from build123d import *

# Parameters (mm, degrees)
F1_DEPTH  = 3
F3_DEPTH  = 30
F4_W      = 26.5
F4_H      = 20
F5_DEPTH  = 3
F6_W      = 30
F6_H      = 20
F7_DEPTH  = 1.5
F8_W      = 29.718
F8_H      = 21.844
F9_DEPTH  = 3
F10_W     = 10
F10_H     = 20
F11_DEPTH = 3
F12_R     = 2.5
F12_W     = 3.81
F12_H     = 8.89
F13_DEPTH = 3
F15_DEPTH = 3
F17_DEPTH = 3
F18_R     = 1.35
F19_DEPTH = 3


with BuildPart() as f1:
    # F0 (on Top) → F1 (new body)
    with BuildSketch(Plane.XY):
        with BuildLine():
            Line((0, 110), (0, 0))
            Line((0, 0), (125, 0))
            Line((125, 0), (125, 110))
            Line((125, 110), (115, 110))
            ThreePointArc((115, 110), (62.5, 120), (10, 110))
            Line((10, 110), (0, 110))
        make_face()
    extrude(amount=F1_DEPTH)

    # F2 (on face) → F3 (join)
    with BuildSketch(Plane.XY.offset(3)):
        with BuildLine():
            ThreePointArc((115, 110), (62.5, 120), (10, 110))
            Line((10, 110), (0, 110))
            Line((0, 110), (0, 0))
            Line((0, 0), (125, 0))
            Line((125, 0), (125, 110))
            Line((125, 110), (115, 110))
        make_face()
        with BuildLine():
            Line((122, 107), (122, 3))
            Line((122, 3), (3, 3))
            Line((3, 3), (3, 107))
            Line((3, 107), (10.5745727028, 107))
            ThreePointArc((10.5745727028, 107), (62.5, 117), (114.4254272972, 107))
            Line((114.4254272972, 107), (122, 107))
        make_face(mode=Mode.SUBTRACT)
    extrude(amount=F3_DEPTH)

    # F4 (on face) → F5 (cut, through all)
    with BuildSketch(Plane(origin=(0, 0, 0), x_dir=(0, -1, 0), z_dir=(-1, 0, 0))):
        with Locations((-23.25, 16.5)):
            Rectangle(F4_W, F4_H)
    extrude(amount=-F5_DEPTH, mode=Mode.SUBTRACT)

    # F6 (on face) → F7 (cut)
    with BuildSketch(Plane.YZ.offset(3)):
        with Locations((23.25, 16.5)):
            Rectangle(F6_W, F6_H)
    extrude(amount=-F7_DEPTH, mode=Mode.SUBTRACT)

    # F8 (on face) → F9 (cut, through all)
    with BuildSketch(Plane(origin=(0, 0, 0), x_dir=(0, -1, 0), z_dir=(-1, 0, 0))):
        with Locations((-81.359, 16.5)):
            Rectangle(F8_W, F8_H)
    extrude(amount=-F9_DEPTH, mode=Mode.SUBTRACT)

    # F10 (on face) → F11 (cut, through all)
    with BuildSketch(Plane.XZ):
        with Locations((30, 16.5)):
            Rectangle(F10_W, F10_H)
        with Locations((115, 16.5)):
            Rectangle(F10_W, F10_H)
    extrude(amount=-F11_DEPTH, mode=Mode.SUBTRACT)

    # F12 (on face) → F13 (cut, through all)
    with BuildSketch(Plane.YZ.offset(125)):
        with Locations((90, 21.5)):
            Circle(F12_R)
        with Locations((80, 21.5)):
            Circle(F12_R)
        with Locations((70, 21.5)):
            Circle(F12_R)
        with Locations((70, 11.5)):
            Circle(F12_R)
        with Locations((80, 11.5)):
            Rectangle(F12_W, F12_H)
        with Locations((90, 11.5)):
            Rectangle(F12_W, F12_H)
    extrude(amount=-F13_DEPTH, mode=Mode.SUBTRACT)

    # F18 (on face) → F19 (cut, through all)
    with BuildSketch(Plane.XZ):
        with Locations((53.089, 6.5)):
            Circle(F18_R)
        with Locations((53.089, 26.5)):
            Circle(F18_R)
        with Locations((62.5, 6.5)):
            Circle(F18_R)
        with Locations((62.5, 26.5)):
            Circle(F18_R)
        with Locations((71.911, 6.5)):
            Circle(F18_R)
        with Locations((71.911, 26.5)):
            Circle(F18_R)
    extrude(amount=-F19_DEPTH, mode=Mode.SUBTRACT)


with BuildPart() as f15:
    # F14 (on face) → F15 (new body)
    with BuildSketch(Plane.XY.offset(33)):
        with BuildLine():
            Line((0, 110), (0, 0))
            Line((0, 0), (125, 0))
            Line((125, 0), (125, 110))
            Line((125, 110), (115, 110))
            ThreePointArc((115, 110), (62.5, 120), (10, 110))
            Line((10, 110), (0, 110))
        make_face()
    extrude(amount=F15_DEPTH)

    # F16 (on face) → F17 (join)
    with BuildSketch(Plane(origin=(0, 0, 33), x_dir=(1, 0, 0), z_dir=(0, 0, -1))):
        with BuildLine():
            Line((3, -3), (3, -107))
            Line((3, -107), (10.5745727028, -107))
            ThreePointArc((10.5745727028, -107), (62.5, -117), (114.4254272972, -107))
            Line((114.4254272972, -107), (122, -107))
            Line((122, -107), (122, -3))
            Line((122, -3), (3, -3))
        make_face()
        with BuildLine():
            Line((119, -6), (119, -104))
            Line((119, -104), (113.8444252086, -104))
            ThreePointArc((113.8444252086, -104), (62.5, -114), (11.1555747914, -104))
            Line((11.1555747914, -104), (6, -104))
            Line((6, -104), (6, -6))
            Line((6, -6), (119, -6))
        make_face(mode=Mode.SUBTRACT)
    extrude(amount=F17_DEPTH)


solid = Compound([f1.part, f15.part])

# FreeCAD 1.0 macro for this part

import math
import FreeCAD as App
import Part
import Sketcher
Q = App.Units.Quantity

doc = App.newDocument("Part")
body = doc.addObject("PartDesign::Body", "Body")

sketch1 = doc.addObject("Sketcher::SketchObject", "Sketch")
body.addObject(sketch1)
sketch1.AttachmentSupport = (doc.XY_Plane, [""])
sketch1.MapMode = "FlatFace"
sketch1.addGeometry([
    Part.LineSegment(App.Vector(0, 110, 0), App.Vector(0, 0, 0)),
    Part.LineSegment(App.Vector(0, 0, 0), App.Vector(125, 0, 0)),
    Part.LineSegment(App.Vector(125, 0, 0), App.Vector(125, 110, 0)),
    Part.LineSegment(App.Vector(125, 110, 0), App.Vector(115, 110, 0)),
    Part.ArcOfCircle(Part.Circle(App.Vector(62, -23, 0), App.Vector(0, 0, 1), 143), math.radians(68), math.radians(112)),
    Part.LineSegment(App.Vector(10, 110, 0), App.Vector(0, 110, 0)),
], False)
sketch1.addConstraint([
    Sketcher.Constraint("Coincident", 0, 2, 1, 1),
    Sketcher.Constraint("Coincident", 1, 2, 2, 1),
    Sketcher.Constraint("Coincident", 2, 2, 3, 1),
    Sketcher.Constraint("Coincident", 3, 2, 4, 1),
    Sketcher.Constraint("Coincident", 4, 2, 5, 1),
    Sketcher.Constraint("Coincident", 5, 2, 0, 1),
    Sketcher.Constraint("Vertical", 0),
    Sketcher.Constraint("Horizontal", 1),
    Sketcher.Constraint("Vertical", 2),
    Sketcher.Constraint("Horizontal", 3),
    Sketcher.Constraint("Horizontal", 5),
    Sketcher.Constraint("Coincident", 0, 2, -1, 1),
    Sketcher.Constraint("Horizontal", 3, 2, 4, 2),
    Sketcher.Constraint("Equal", 3, 5),
    Sketcher.Constraint("DistanceX", 1, 1, 1, 2, Q("125 mm")),
    Sketcher.Constraint("DistanceX", 3, 2, 3, 1, Q("10 mm")),
    Sketcher.Constraint("DistanceY", 0, 2, 0, 1, Q("110 mm")),
    Sketcher.Constraint("Radius", 4, Q("142.8125 mm")),
])
pad1 = doc.addObject("PartDesign::Pad", "Pad")
body.addObject(pad1)
pad1.Profile = sketch1
pad1.Length = 3

sketch2 = doc.addObject("Sketcher::SketchObject", "Sketch001")
body.addObject(sketch2)
sketch2.AttachmentSupport = (doc.XY_Plane, [""])
sketch2.MapMode = "FlatFace"
sketch2.AttachmentOffset = App.Placement(App.Vector(0, 0, 3), App.Rotation())
sketch2.addGeometry([
    Part.ArcOfCircle(Part.Circle(App.Vector(62, -23, 0), App.Vector(0, 0, 1), 143), math.radians(68), math.radians(112)),
    Part.LineSegment(App.Vector(10, 110, 0), App.Vector(0, 110, 0)),
    Part.LineSegment(App.Vector(0, 110, 0), App.Vector(0, 0, 0)),
    Part.LineSegment(App.Vector(0, 0, 0), App.Vector(125, 0, 0)),
    Part.LineSegment(App.Vector(125, 0, 0), App.Vector(125, 110, 0)),
    Part.LineSegment(App.Vector(125, 110, 0), App.Vector(115, 110, 0)),
    Part.LineSegment(App.Vector(114, 107, 0), App.Vector(122, 107, 0)),
    Part.LineSegment(App.Vector(122, 107, 0), App.Vector(122, 3, 0)),
    Part.LineSegment(App.Vector(122, 3, 0), App.Vector(3, 3, 0)),
    Part.LineSegment(App.Vector(3, 3, 0), App.Vector(3, 107, 0)),
    Part.LineSegment(App.Vector(3, 107, 0), App.Vector(11, 107, 0)),
    Part.ArcOfCircle(Part.Circle(App.Vector(62, -23, 0), App.Vector(0, 0, 1), 140), math.radians(68), math.radians(112)),
], False)
sketch2.addConstraint([
    Sketcher.Constraint("Coincident", 0, 2, 1, 1),
    Sketcher.Constraint("Coincident", 1, 2, 2, 1),
    Sketcher.Constraint("Coincident", 2, 2, 3, 1),
    Sketcher.Constraint("Coincident", 3, 2, 4, 1),
    Sketcher.Constraint("Coincident", 4, 2, 5, 1),
    Sketcher.Constraint("Coincident", 5, 2, 0, 1),
    Sketcher.Constraint("Coincident", 6, 2, 7, 1),
    Sketcher.Constraint("Coincident", 7, 2, 8, 1),
    Sketcher.Constraint("Coincident", 8, 2, 9, 1),
    Sketcher.Constraint("Coincident", 9, 2, 10, 1),
    Sketcher.Constraint("Coincident", 10, 2, 11, 2),
    Sketcher.Constraint("Coincident", 11, 1, 6, 1),
    Sketcher.Constraint("Horizontal", 1),
    Sketcher.Constraint("Vertical", 2),
    Sketcher.Constraint("Horizontal", 3),
    Sketcher.Constraint("Vertical", 4),
    Sketcher.Constraint("Horizontal", 5),
    Sketcher.Constraint("Horizontal", 6),
    Sketcher.Constraint("Vertical", 7),
    Sketcher.Constraint("Horizontal", 8),
    Sketcher.Constraint("Vertical", 9),
    Sketcher.Constraint("Horizontal", 10),
    Sketcher.Constraint("Coincident", 2, 2, -1, 1),
    Sketcher.Constraint("Coincident", 11, 3, 0, 3),
    Sketcher.Constraint("Horizontal", 1, 2, 4, 2),
    Sketcher.Constraint("Horizontal", 6, 2, 9, 2),
    Sketcher.Constraint("Equal", 1, 5),
    Sketcher.Constraint("Equal", 6, 10),
    Sketcher.Constraint("DistanceX", 1, 2, 1, 1, Q("10 mm")),
    Sketcher.Constraint("DistanceX", 3, 1, 3, 2, Q("125 mm")),
    Sketcher.Constraint("DistanceX", 8, 2, 8, 1, Q("119 mm")),
    Sketcher.Constraint("DistanceY", 2, 2, 2, 1, Q("110 mm")),
    Sketcher.Constraint("DistanceY", 7, 2, 7, 1, Q("104 mm")),
    Sketcher.Constraint("DistanceY", -1, 1, 6, 2, Q("107 mm")),
    Sketcher.Constraint("Radius", 0, Q("142.8125 mm")),
    Sketcher.Constraint("Radius", 11, Q("139.8125 mm")),
])
pad2 = doc.addObject("PartDesign::Pad", "Pad001")
body.addObject(pad2)
pad2.Profile = sketch2
pad2.Length = 30

sketch3 = doc.addObject("Sketcher::SketchObject", "Sketch002")
body.addObject(sketch3)
sketch3.AttachmentSupport = (doc.YZ_Plane, [""])
sketch3.MapMode = "FlatFace"
sketch3.addGeometry([
    Part.LineSegment(App.Vector(36, 26, 0), App.Vector(36, 6, 0)),
    Part.LineSegment(App.Vector(36, 6, 0), App.Vector(10, 6, 0)),
    Part.LineSegment(App.Vector(10, 6, 0), App.Vector(10, 26, 0)),
    Part.LineSegment(App.Vector(10, 26, 0), App.Vector(36, 26, 0)),
], False)
sketch3.addConstraint([
    Sketcher.Constraint("Coincident", 0, 2, 1, 1),
    Sketcher.Constraint("Coincident", 1, 2, 2, 1),
    Sketcher.Constraint("Coincident", 2, 2, 3, 1),
    Sketcher.Constraint("Coincident", 3, 2, 0, 1),
    Sketcher.Constraint("Vertical", 0),
    Sketcher.Constraint("Horizontal", 1),
    Sketcher.Constraint("Vertical", 2),
    Sketcher.Constraint("Horizontal", 3),
    Sketcher.Constraint("DistanceY", 0, 2, 0, 1, Q("20 mm")),
    Sketcher.Constraint("DistanceX", 1, 2, 1, 1, Q("26.5 mm")),
    Sketcher.Constraint("DistanceX", -1, 1, 1, 2, Q("10 mm")),
    Sketcher.Constraint("DistanceY", -1, 1, 0, 2, Q("6.5 mm")),
])
pocket1 = doc.addObject("PartDesign::Pocket", "Pocket")
body.addObject(pocket1)
pocket1.Profile = sketch3
pocket1.Length = 3
pocket1.Reversed = True

sketch4 = doc.addObject("Sketcher::SketchObject", "Sketch003")
body.addObject(sketch4)
sketch4.AttachmentSupport = (doc.YZ_Plane, [""])
sketch4.MapMode = "FlatFace"
sketch4.AttachmentOffset = App.Placement(App.Vector(0, 0, 3), App.Rotation())
sketch4.addGeometry([
    Part.LineSegment(App.Vector(8, 26, 0), App.Vector(8, 6, 0)),
    Part.LineSegment(App.Vector(8, 6, 0), App.Vector(38, 6, 0)),
    Part.LineSegment(App.Vector(38, 6, 0), App.Vector(38, 26, 0)),
    Part.LineSegment(App.Vector(38, 26, 0), App.Vector(8, 26, 0)),
], False)
sketch4.addConstraint([
    Sketcher.Constraint("Coincident", 0, 2, 1, 1),
    Sketcher.Constraint("Coincident", 1, 2, 2, 1),
    Sketcher.Constraint("Coincident", 2, 2, 3, 1),
    Sketcher.Constraint("Coincident", 3, 2, 0, 1),
    Sketcher.Constraint("Vertical", 0),
    Sketcher.Constraint("Horizontal", 1),
    Sketcher.Constraint("Vertical", 2),
    Sketcher.Constraint("Horizontal", 3),
    Sketcher.Constraint("DistanceX", 1, 1, 1, 2, Q("30 mm")),
    Sketcher.Constraint("DistanceY", 0, 2, 0, 1, Q("20 mm")),
    Sketcher.Constraint("DistanceY", -1, 1, 0, 2, Q("6.5 mm")),
    Sketcher.Constraint("DistanceX", -1, 1, 0, 2, Q("8.25 mm")),
])
pocket2 = doc.addObject("PartDesign::Pocket", "Pocket001")
body.addObject(pocket2)
pocket2.Profile = sketch4
pocket2.Length = 1.5

sketch5 = doc.addObject("Sketcher::SketchObject", "Sketch004")
body.addObject(sketch5)
sketch5.AttachmentSupport = (doc.YZ_Plane, [""])
sketch5.MapMode = "FlatFace"
sketch5.addGeometry([
    Part.LineSegment(App.Vector(96, 27, 0), App.Vector(96, 6, 0)),
    Part.LineSegment(App.Vector(96, 6, 0), App.Vector(66, 6, 0)),
    Part.LineSegment(App.Vector(66, 6, 0), App.Vector(66, 27, 0)),
    Part.LineSegment(App.Vector(66, 27, 0), App.Vector(96, 27, 0)),
], False)
sketch5.addConstraint([
    Sketcher.Constraint("Coincident", 0, 2, 1, 1),
    Sketcher.Constraint("Coincident", 1, 2, 2, 1),
    Sketcher.Constraint("Coincident", 2, 2, 3, 1),
    Sketcher.Constraint("Coincident", 3, 2, 0, 1),
    Sketcher.Constraint("Vertical", 0),
    Sketcher.Constraint("Horizontal", 1),
    Sketcher.Constraint("Vertical", 2),
    Sketcher.Constraint("Horizontal", 3),
    Sketcher.Constraint("DistanceX", -1, 1, 1, 2, Q("66.5 mm")),
    Sketcher.Constraint("DistanceX", 1, 2, 1, 1, Q("29.718 mm")),
    Sketcher.Constraint("DistanceY", 0, 2, 0, 1, Q("21.844 mm")),
    Sketcher.Constraint("DistanceY", -1, 1, 0, 2, Q("5.578 mm")),
])
pocket3 = doc.addObject("PartDesign::Pocket", "Pocket002")
body.addObject(pocket3)
pocket3.Profile = sketch5
pocket3.Length = 3
pocket3.Reversed = True

sketch6 = doc.addObject("Sketcher::SketchObject", "Sketch005")
body.addObject(sketch6)
sketch6.AttachmentSupport = (doc.XZ_Plane, [""])
sketch6.MapMode = "FlatFace"
sketch6.addGeometry([
    Part.LineSegment(App.Vector(25, 26, 0), App.Vector(25, 6, 0)),
    Part.LineSegment(App.Vector(25, 6, 0), App.Vector(35, 6, 0)),
    Part.LineSegment(App.Vector(35, 6, 0), App.Vector(35, 26, 0)),
    Part.LineSegment(App.Vector(35, 26, 0), App.Vector(25, 26, 0)),
    Part.LineSegment(App.Vector(110, 26, 0), App.Vector(110, 6, 0)),
    Part.LineSegment(App.Vector(110, 6, 0), App.Vector(120, 6, 0)),
    Part.LineSegment(App.Vector(120, 6, 0), App.Vector(120, 26, 0)),
    Part.LineSegment(App.Vector(120, 26, 0), App.Vector(110, 26, 0)),
], False)
sketch6.addConstraint([
    Sketcher.Constraint("Coincident", 0, 2, 1, 1),
    Sketcher.Constraint("Coincident", 1, 2, 2, 1),
    Sketcher.Constraint("Coincident", 2, 2, 3, 1),
    Sketcher.Constraint("Coincident", 3, 2, 0, 1),
    Sketcher.Constraint("Coincident", 4, 2, 5, 1),
    Sketcher.Constraint("Coincident", 5, 2, 6, 1),
    Sketcher.Constraint("Coincident", 6, 2, 7, 1),
    Sketcher.Constraint("Coincident", 7, 2, 4, 1),
    Sketcher.Constraint("Vertical", 0),
    Sketcher.Constraint("Horizontal", 1),
    Sketcher.Constraint("Vertical", 2),
    Sketcher.Constraint("Horizontal", 3),
    Sketcher.Constraint("Vertical", 4),
    Sketcher.Constraint("Horizontal", 5),
    Sketcher.Constraint("Vertical", 6),
    Sketcher.Constraint("Horizontal", 7),
    Sketcher.Constraint("Horizontal", 1, 2, 4, 2),
    Sketcher.Constraint("Horizontal", 3, 2, 6, 2),
    Sketcher.Constraint("Equal", 3, 5),
    Sketcher.Constraint("DistanceX", 1, 1, 1, 2, Q("10 mm")),
    Sketcher.Constraint("DistanceY", 0, 2, 0, 1, Q("20 mm")),
    Sketcher.Constraint("DistanceX", -1, 1, 0, 2, Q("25 mm")),
    Sketcher.Constraint("DistanceX", -1, 1, 4, 2, Q("110 mm")),
    Sketcher.Constraint("DistanceY", -1, 1, 0, 2, Q("6.5 mm")),
])
pocket4 = doc.addObject("PartDesign::Pocket", "Pocket003")
body.addObject(pocket4)
pocket4.Profile = sketch6
pocket4.Length = 3

sketch7 = doc.addObject("Sketcher::SketchObject", "Sketch006")
body.addObject(sketch7)
sketch7.AttachmentSupport = (doc.YZ_Plane, [""])
sketch7.MapMode = "FlatFace"
sketch7.AttachmentOffset = App.Placement(App.Vector(0, 0, 125), App.Rotation())
sketch7.addGeometry([
    Part.Circle(App.Vector(90, 21.5, 0), App.Vector(0, 0, 1), 2.5),
    Part.Circle(App.Vector(80, 21.5, 0), App.Vector(0, 0, 1), 2.5),
    Part.Circle(App.Vector(70, 21.5, 0), App.Vector(0, 0, 1), 2.5),
    Part.Circle(App.Vector(70, 11.5, 0), App.Vector(0, 0, 1), 2.5),
    Part.LineSegment(App.Vector(78.1, 15.9, 0), App.Vector(78.1, 7.1, 0)),
    Part.LineSegment(App.Vector(78.1, 7.1, 0), App.Vector(81.9, 7.1, 0)),
    Part.LineSegment(App.Vector(81.9, 7.1, 0), App.Vector(81.9, 15.9, 0)),
    Part.LineSegment(App.Vector(81.9, 15.9, 0), App.Vector(78.1, 15.9, 0)),
    Part.LineSegment(App.Vector(88.1, 15.9, 0), App.Vector(88.1, 7.1, 0)),
    Part.LineSegment(App.Vector(88.1, 7.1, 0), App.Vector(91.9, 7.1, 0)),
    Part.LineSegment(App.Vector(91.9, 7.1, 0), App.Vector(91.9, 15.9, 0)),
    Part.LineSegment(App.Vector(91.9, 15.9, 0), App.Vector(88.1, 15.9, 0)),
], False)
sketch7.addConstraint([
    Sketcher.Constraint("Coincident", 4, 2, 5, 1),
    Sketcher.Constraint("Coincident", 5, 2, 6, 1),
    Sketcher.Constraint("Coincident", 6, 2, 7, 1),
    Sketcher.Constraint("Coincident", 7, 2, 4, 1),
    Sketcher.Constraint("Coincident", 8, 2, 9, 1),
    Sketcher.Constraint("Coincident", 9, 2, 10, 1),
    Sketcher.Constraint("Coincident", 10, 2, 11, 1),
    Sketcher.Constraint("Coincident", 11, 2, 8, 1),
    Sketcher.Constraint("Vertical", 4),
    Sketcher.Constraint("Horizontal", 5),
    Sketcher.Constraint("Vertical", 6),
    Sketcher.Constraint("Horizontal", 7),
    Sketcher.Constraint("Vertical", 8),
    Sketcher.Constraint("Horizontal", 9),
    Sketcher.Constraint("Vertical", 10),
    Sketcher.Constraint("Horizontal", 11),
    Sketcher.Constraint("Equal", 0, 1),
    Sketcher.Constraint("Equal", 1, 2),
    Sketcher.Constraint("Equal", 2, 3),
    Sketcher.Constraint("Horizontal", 0, 3, 1, 3),
    Sketcher.Constraint("Horizontal", 1, 3, 2, 3),
    Sketcher.Constraint("Horizontal", 5, 2, 8, 2),
    Sketcher.Constraint("Horizontal", 7, 2, 10, 2),
    Sketcher.Constraint("Vertical", 2, 3, 3, 3),
    Sketcher.Constraint("Equal", 7, 9),
    Sketcher.Constraint("Diameter", 0, Q("5 mm")),
    Sketcher.Constraint("DistanceX", -1, 1, 0, 3, Q("90 mm")),
    Sketcher.Constraint("DistanceX", -1, 1, 1, 3, Q("80 mm")),
    Sketcher.Constraint("DistanceX", -1, 1, 2, 3, Q("70 mm")),
    Sketcher.Constraint("DistanceY", 3, 3, 2, 3, Q("10 mm")),
    Sketcher.Constraint("DistanceX", 4, 2, 8, 2, Q("10 mm")),
    Sketcher.Constraint("DistanceX", 5, 1, 5, 2, Q("3.81 mm")),
    Sketcher.Constraint("DistanceY", 4, 2, 4, 1, Q("8.89 mm")),
    Sketcher.Constraint("DistanceY", -1, 1, 0, 3, Q("21.5 mm")),
    Sketcher.Constraint("DistanceX", -1, 1, 4, 2, Q("78.095 mm")),
    Sketcher.Constraint("DistanceY", -1, 1, 4, 2, Q("7.055 mm")),
])
pocket5 = doc.addObject("PartDesign::Pocket", "Pocket004")
body.addObject(pocket5)
pocket5.Profile = sketch7
pocket5.Type = "ThroughAll"

sketch8 = doc.addObject("Sketcher::SketchObject", "Sketch007")
body.addObject(sketch8)
sketch8.AttachmentSupport = (doc.XZ_Plane, [""])
sketch8.MapMode = "FlatFace"
sketch8.addGeometry([
    Part.Circle(App.Vector(53.1, 6.5, 0), App.Vector(0, 0, 1), 1.4),
    Part.Circle(App.Vector(53.1, 26.5, 0), App.Vector(0, 0, 1), 1.4),
    Part.Circle(App.Vector(62.5, 6.5, 0), App.Vector(0, 0, 1), 1.4),
    Part.Circle(App.Vector(62.5, 26.5, 0), App.Vector(0, 0, 1), 1.4),
    Part.Circle(App.Vector(71.9, 6.5, 0), App.Vector(0, 0, 1), 1.4),
    Part.Circle(App.Vector(71.9, 26.5, 0), App.Vector(0, 0, 1), 1.4),
], False)
sketch8.addConstraint([
    Sketcher.Constraint("Equal", 0, 1),
    Sketcher.Constraint("Equal", 1, 2),
    Sketcher.Constraint("Equal", 2, 3),
    Sketcher.Constraint("Equal", 3, 4),
    Sketcher.Constraint("Equal", 4, 5),
    Sketcher.Constraint("Horizontal", 0, 3, 2, 3),
    Sketcher.Constraint("Horizontal", 1, 3, 3, 3),
    Sketcher.Constraint("Horizontal", 2, 3, 4, 3),
    Sketcher.Constraint("Horizontal", 3, 3, 5, 3),
    Sketcher.Constraint("Vertical", 0, 3, 1, 3),
    Sketcher.Constraint("Vertical", 2, 3, 3, 3),
    Sketcher.Constraint("Vertical", 4, 3, 5, 3),
    Sketcher.Constraint("Diameter", 0, Q("2.7 mm")),
    Sketcher.Constraint("DistanceY", 0, 3, 1, 3, Q("20 mm")),
    Sketcher.Constraint("DistanceY", -1, 1, 0, 3, Q("6.5 mm")),
    Sketcher.Constraint("DistanceX", -1, 1, 2, 3, Q("62.5 mm")),
    Sketcher.Constraint("DistanceX", -1, 1, 0, 3, Q("53.089 mm")),
    Sketcher.Constraint("DistanceX", -1, 1, 4, 3, Q("71.911 mm")),
])
pocket6 = doc.addObject("PartDesign::Pocket", "Pocket005")
body.addObject(pocket6)
pocket6.Profile = sketch8
pocket6.Length = 3
body2 = doc.addObject("PartDesign::Body", "Body001")

sketch9 = doc.addObject("Sketcher::SketchObject", "Sketch008")
body2.addObject(sketch9)
sketch9.AttachmentSupport = (doc.getObject("XY_Plane001"), [""])
sketch9.MapMode = "FlatFace"
sketch9.AttachmentOffset = App.Placement(App.Vector(0, 0, 33), App.Rotation())
sketch9.addGeometry([
    Part.LineSegment(App.Vector(0, 110, 0), App.Vector(0, 0, 0)),
    Part.LineSegment(App.Vector(0, 0, 0), App.Vector(125, 0, 0)),
    Part.LineSegment(App.Vector(125, 0, 0), App.Vector(125, 110, 0)),
    Part.LineSegment(App.Vector(125, 110, 0), App.Vector(115, 110, 0)),
    Part.ArcOfCircle(Part.Circle(App.Vector(62, -23, 0), App.Vector(0, 0, 1), 143), math.radians(68), math.radians(112)),
    Part.LineSegment(App.Vector(10, 110, 0), App.Vector(0, 110, 0)),
], False)
sketch9.addConstraint([
    Sketcher.Constraint("Coincident", 0, 2, 1, 1),
    Sketcher.Constraint("Coincident", 1, 2, 2, 1),
    Sketcher.Constraint("Coincident", 2, 2, 3, 1),
    Sketcher.Constraint("Coincident", 3, 2, 4, 1),
    Sketcher.Constraint("Coincident", 4, 2, 5, 1),
    Sketcher.Constraint("Coincident", 5, 2, 0, 1),
    Sketcher.Constraint("Vertical", 0),
    Sketcher.Constraint("Horizontal", 1),
    Sketcher.Constraint("Vertical", 2),
    Sketcher.Constraint("Horizontal", 3),
    Sketcher.Constraint("Horizontal", 5),
    Sketcher.Constraint("Coincident", 0, 2, -1, 1),
    Sketcher.Constraint("Horizontal", 3, 2, 4, 2),
    Sketcher.Constraint("Equal", 3, 5),
    Sketcher.Constraint("DistanceX", 1, 1, 1, 2, Q("125 mm")),
    Sketcher.Constraint("DistanceX", 3, 2, 3, 1, Q("10 mm")),
    Sketcher.Constraint("DistanceY", 0, 2, 0, 1, Q("110 mm")),
    Sketcher.Constraint("Radius", 4, Q("142.8125 mm")),
])
pad3 = doc.addObject("PartDesign::Pad", "Pad002")
body2.addObject(pad3)
pad3.Profile = sketch9
pad3.Length = 3

sketch10 = doc.addObject("Sketcher::SketchObject", "Sketch009")
body2.addObject(sketch10)
sketch10.AttachmentSupport = (doc.getObject("XY_Plane001"), [""])
sketch10.MapMode = "FlatFace"
sketch10.AttachmentOffset = App.Placement(App.Vector(0, 0, 33), App.Rotation())
sketch10.addGeometry([
    Part.LineSegment(App.Vector(3, 3, 0), App.Vector(3, 107, 0)),
    Part.LineSegment(App.Vector(3, 107, 0), App.Vector(11, 107, 0)),
    Part.ArcOfCircle(Part.Circle(App.Vector(62, -23, 0), App.Vector(0, 0, 1), 140), math.radians(68), math.radians(112)),
    Part.LineSegment(App.Vector(114, 107, 0), App.Vector(122, 107, 0)),
    Part.LineSegment(App.Vector(122, 107, 0), App.Vector(122, 3, 0)),
    Part.LineSegment(App.Vector(122, 3, 0), App.Vector(3, 3, 0)),
    Part.LineSegment(App.Vector(6, 6, 0), App.Vector(119, 6, 0)),
    Part.LineSegment(App.Vector(119, 6, 0), App.Vector(119, 104, 0)),
    Part.LineSegment(App.Vector(119, 104, 0), App.Vector(114, 104, 0)),
    Part.ArcOfCircle(Part.Circle(App.Vector(62, -23, 0), App.Vector(0, 0, 1), 137), math.radians(68), math.radians(112)),
    Part.LineSegment(App.Vector(11, 104, 0), App.Vector(6, 104, 0)),
    Part.LineSegment(App.Vector(6, 104, 0), App.Vector(6, 6, 0)),
], False)
sketch10.addConstraint([
    Sketcher.Constraint("Coincident", 0, 2, 1, 1),
    Sketcher.Constraint("Coincident", 1, 2, 2, 2),
    Sketcher.Constraint("Coincident", 2, 1, 3, 1),
    Sketcher.Constraint("Coincident", 3, 2, 4, 1),
    Sketcher.Constraint("Coincident", 4, 2, 5, 1),
    Sketcher.Constraint("Coincident", 5, 2, 0, 1),
    Sketcher.Constraint("Coincident", 6, 2, 7, 1),
    Sketcher.Constraint("Coincident", 7, 2, 8, 1),
    Sketcher.Constraint("Coincident", 8, 2, 9, 1),
    Sketcher.Constraint("Coincident", 9, 2, 10, 1),
    Sketcher.Constraint("Coincident", 10, 2, 11, 1),
    Sketcher.Constraint("Coincident", 11, 2, 6, 1),
    Sketcher.Constraint("Vertical", 0),
    Sketcher.Constraint("Horizontal", 1),
    Sketcher.Constraint("Horizontal", 3),
    Sketcher.Constraint("Vertical", 4),
    Sketcher.Constraint("Horizontal", 5),
    Sketcher.Constraint("Horizontal", 6),
    Sketcher.Constraint("Vertical", 7),
    Sketcher.Constraint("Horizontal", 8),
    Sketcher.Constraint("Horizontal", 10),
    Sketcher.Constraint("Vertical", 11),
    Sketcher.Constraint("Coincident", 9, 3, 2, 3),
    Sketcher.Constraint("Horizontal", 1, 2, 2, 1),
    Sketcher.Constraint("Horizontal", 8, 2, 9, 2),
    Sketcher.Constraint("Equal", 1, 3),
    Sketcher.Constraint("Equal", 8, 10),
    Sketcher.Constraint("DistanceX", 5, 2, 5, 1, Q("119 mm")),
    Sketcher.Constraint("DistanceX", 6, 1, 6, 2, Q("113 mm")),
    Sketcher.Constraint("DistanceY", 0, 1, 0, 2, Q("104 mm")),
    Sketcher.Constraint("DistanceY", 7, 1, 7, 2, Q("98 mm")),
    Sketcher.Constraint("DistanceX", -1, 1, 0, 2, Q("3 mm")),
    Sketcher.Constraint("DistanceY", -1, 1, 0, 2, Q("107 mm")),
    Sketcher.Constraint("DistanceY", -1, 1, 6, 2, Q("6 mm")),
    Sketcher.Constraint("Radius", 2, Q("139.8125 mm")),
    Sketcher.Constraint("Radius", 9, Q("136.8125 mm")),
    Sketcher.Constraint("DistanceY", 2, 3, -1, 1, Q("22.8125 mm")),
])
pad4 = doc.addObject("PartDesign::Pad", "Pad003")
body2.addObject(pad4)
pad4.Profile = sketch10
pad4.Length = 3
pad4.Reversed = True

doc.recompute()
